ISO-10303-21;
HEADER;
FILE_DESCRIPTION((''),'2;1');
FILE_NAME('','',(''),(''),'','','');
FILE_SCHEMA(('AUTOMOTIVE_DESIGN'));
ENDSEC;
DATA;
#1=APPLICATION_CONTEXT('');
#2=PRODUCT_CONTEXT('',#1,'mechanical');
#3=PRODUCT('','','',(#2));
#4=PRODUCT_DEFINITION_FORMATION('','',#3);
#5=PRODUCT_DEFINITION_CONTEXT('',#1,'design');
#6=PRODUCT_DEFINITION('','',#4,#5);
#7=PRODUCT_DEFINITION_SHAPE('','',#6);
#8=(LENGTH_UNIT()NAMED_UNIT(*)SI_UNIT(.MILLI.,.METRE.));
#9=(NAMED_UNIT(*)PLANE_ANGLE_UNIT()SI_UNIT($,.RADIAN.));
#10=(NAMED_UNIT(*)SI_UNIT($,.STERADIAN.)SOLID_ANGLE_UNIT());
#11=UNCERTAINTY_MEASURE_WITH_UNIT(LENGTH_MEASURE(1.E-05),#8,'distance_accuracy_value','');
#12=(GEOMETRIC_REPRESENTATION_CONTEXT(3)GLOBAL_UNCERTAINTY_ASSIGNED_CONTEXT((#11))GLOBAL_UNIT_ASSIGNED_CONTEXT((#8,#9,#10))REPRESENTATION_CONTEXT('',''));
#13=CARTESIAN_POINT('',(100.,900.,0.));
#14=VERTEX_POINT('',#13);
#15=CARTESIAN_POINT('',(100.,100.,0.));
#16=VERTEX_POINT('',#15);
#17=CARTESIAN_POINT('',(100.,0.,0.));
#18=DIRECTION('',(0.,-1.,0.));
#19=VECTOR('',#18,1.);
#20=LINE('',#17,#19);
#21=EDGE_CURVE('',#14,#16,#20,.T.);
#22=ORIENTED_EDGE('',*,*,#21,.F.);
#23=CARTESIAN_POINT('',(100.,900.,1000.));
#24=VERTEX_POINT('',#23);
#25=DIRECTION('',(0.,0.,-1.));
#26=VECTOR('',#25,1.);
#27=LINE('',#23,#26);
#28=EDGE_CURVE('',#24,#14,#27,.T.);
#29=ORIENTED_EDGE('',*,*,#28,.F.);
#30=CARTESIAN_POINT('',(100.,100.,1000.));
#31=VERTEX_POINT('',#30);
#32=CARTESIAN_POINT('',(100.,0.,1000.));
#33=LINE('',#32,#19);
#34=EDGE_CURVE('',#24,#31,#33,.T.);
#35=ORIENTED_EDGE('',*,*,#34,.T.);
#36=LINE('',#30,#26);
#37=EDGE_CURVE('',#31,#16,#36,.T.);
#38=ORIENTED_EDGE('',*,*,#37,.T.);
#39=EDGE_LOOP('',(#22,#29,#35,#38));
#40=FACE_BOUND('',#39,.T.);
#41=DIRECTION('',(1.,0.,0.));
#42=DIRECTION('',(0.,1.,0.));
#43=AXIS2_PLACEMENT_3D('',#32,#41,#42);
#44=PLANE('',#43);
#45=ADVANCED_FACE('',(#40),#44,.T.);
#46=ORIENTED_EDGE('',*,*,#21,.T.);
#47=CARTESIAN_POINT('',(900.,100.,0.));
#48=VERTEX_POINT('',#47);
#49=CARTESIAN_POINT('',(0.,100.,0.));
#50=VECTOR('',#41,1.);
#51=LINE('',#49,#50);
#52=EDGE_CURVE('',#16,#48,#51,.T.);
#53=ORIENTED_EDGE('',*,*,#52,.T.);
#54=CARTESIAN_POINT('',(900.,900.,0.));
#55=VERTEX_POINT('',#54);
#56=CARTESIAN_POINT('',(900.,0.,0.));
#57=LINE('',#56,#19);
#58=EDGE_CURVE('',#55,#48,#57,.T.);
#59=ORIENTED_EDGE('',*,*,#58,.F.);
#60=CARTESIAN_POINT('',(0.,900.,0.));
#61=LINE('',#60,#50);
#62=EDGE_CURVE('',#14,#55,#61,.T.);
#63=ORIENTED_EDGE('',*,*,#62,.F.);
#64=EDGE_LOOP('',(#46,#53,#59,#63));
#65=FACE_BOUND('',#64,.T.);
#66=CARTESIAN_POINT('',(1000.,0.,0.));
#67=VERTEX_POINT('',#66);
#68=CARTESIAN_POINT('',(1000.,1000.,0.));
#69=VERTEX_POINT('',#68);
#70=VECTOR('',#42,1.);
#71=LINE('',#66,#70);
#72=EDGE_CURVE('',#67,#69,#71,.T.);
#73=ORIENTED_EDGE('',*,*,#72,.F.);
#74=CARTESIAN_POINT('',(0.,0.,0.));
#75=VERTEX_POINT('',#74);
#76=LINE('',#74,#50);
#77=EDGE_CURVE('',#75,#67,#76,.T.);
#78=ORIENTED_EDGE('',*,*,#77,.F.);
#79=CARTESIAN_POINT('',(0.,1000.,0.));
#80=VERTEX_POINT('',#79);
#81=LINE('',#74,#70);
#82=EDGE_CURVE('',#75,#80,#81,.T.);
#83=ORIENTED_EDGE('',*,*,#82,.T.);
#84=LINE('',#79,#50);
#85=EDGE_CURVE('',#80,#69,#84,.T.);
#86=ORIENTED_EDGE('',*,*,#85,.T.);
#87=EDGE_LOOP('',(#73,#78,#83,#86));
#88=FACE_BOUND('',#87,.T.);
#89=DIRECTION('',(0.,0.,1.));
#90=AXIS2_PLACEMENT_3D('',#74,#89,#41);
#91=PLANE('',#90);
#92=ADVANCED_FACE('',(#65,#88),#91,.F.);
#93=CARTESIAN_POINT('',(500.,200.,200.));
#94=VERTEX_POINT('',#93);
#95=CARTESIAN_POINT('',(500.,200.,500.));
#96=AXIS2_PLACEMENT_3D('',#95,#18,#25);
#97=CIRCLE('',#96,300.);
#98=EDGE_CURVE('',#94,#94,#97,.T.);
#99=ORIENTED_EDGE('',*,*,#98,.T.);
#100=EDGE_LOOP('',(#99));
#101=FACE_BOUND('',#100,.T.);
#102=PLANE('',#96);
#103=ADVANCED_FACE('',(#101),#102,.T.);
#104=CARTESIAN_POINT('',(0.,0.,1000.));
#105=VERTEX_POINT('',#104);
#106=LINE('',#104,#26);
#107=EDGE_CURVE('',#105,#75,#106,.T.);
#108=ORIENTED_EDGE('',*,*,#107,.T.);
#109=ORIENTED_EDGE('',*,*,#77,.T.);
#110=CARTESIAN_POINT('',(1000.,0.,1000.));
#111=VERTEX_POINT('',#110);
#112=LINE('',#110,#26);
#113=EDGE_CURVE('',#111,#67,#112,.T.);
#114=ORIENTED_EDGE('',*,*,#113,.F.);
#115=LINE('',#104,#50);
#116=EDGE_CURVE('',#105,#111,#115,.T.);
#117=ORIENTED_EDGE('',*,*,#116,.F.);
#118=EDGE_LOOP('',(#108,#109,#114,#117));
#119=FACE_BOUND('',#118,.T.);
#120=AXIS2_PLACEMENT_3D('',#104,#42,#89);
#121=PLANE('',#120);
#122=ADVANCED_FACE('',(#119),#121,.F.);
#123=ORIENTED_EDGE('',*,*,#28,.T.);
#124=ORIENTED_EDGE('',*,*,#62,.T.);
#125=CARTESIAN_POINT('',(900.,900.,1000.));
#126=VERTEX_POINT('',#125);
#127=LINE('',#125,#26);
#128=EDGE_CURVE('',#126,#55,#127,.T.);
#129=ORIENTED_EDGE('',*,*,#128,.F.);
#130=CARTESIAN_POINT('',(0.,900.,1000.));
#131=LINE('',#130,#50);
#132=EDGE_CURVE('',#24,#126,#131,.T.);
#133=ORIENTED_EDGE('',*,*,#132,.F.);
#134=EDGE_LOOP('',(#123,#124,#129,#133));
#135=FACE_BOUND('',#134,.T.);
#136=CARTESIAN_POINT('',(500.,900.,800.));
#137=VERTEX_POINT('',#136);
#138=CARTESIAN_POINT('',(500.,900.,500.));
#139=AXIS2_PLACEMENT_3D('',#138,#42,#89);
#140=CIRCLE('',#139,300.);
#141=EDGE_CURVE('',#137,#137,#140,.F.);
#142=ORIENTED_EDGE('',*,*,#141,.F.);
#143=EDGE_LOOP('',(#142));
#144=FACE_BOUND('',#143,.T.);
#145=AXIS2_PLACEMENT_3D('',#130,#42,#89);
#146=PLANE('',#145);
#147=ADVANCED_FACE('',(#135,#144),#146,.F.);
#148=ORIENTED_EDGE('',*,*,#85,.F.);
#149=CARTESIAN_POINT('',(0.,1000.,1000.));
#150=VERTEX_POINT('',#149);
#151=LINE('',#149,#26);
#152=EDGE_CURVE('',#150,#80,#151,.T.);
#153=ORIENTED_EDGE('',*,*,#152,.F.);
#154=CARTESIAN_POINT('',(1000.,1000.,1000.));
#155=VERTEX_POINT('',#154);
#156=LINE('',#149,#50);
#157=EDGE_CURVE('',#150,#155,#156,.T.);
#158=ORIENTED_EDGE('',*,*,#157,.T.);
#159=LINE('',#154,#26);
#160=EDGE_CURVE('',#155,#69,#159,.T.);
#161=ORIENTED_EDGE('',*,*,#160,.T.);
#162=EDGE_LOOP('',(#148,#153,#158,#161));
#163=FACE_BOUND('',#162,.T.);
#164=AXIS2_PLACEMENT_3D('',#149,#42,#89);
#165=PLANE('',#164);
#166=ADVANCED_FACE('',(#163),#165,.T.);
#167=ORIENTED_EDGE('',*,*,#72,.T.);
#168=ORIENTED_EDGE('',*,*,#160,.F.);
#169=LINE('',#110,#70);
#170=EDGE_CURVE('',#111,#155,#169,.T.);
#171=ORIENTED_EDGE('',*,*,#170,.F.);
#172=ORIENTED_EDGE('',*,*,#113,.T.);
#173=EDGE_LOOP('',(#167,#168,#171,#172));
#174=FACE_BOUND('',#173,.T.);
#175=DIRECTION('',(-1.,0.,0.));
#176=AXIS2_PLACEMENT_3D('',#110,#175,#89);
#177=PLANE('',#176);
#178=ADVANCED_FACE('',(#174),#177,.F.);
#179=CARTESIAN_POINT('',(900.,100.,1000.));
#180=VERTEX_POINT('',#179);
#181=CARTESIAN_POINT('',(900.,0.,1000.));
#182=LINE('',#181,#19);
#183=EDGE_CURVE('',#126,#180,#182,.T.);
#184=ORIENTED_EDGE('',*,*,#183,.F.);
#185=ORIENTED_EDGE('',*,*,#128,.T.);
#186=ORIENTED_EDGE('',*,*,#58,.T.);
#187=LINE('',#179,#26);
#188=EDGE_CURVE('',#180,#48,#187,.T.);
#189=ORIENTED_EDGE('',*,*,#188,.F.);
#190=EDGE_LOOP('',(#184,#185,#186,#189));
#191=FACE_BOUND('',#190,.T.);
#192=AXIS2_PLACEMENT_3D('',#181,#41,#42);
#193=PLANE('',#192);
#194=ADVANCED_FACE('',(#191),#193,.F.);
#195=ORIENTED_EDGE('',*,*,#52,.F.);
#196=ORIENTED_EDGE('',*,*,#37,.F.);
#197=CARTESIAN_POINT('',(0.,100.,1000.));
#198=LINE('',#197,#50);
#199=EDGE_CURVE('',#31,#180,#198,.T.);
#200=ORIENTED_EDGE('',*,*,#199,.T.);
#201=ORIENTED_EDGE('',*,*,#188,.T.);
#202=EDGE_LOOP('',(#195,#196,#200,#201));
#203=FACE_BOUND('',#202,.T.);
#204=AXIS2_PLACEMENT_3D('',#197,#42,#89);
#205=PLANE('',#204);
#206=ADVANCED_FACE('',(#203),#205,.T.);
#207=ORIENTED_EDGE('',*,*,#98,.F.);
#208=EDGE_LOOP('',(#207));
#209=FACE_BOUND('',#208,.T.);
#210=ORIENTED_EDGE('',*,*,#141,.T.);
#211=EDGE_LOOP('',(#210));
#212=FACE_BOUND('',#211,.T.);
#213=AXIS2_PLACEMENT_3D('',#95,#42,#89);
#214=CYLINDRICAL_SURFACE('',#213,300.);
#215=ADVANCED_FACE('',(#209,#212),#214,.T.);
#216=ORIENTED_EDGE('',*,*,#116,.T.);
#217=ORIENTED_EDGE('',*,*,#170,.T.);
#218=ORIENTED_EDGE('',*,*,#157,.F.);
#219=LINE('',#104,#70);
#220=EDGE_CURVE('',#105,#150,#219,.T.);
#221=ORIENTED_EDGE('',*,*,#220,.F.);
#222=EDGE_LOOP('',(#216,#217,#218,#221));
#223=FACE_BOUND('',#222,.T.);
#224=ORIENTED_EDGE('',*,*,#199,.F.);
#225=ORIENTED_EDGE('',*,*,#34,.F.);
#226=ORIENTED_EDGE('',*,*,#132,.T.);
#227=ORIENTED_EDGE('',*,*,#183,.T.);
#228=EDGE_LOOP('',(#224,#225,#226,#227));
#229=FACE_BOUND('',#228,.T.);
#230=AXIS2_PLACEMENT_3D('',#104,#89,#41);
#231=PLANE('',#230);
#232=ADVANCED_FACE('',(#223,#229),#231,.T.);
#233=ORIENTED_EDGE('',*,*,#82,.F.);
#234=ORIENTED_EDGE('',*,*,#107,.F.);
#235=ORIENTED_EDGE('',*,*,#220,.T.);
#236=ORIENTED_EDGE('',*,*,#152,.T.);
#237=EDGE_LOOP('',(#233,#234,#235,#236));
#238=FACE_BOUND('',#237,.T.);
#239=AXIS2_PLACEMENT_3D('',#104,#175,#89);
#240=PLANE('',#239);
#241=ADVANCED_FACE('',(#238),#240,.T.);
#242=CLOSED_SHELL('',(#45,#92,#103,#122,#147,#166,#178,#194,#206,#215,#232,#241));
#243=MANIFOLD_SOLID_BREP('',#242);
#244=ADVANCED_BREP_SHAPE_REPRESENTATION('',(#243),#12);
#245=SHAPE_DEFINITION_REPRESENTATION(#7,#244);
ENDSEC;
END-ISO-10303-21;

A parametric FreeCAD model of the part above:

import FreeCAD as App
import Part
import Sketcher
from FreeCAD import Vector


def add_polygon(sketch, points):
    """Adds a closed chain of lines whose ends are joined by coincident constraints."""
    first, n = sketch.GeometryCount, len(points)
    for a, b in zip(points, points[1:] + points[:1]):
        sketch.addGeometry(Part.LineSegment(App.Vector(*a, 0), App.Vector(*b, 0)), False)
    for i in range(n):
        sketch.addConstraint(Sketcher.Constraint("Coincident", first + i, 2, first + (i + 1) % n, 1))

doc = App.newDocument("Part")
body = doc.addObject("PartDesign::Body", "Body")

# Sketch on XY plane
sketch1 = body.newObject("Sketcher::SketchObject", "Sketch")
sketch1.AttachmentSupport = (doc.getObject("XY_Plane"), [""])
sketch1.MapMode = "FlatFace"
add_polygon(sketch1, [(0, 1000), (0, 0), (1000, 0), (1000, 1000)])  # lines 0-3
add_polygon(sketch1, [(900, 100), (100, 100), (100, 900), (900, 900)])  # lines 4-7
sketch1.addConstraint([
    Sketcher.Constraint("Vertical", 0),
    Sketcher.Constraint("Horizontal", 1),
    Sketcher.Constraint("Vertical", 2),
    Sketcher.Constraint("Horizontal", 3),
    Sketcher.Constraint("Horizontal", 4),
    Sketcher.Constraint("Vertical", 5),
    Sketcher.Constraint("Horizontal", 6),
    Sketcher.Constraint("Vertical", 7),
    Sketcher.Constraint("Coincident", 0, 2, -1, 1),
    Sketcher.Constraint("Equal", 3, 0),
    Sketcher.Constraint("Equal", 6, 5),
    Sketcher.Constraint("DistanceX", 1, 1, 1, 2, 1000.0),
    Sketcher.Constraint("DistanceX", 4, 2, 4, 1, 800.0),
    Sketcher.Constraint("DistanceX", -1, 1, 4, 2, 100.0),
    Sketcher.Constraint("DistanceY", -1, 1, 4, 2, 100.0),
])
pad1 = body.newObject("PartDesign::Pad", "Pad")
pad1.Profile = sketch1
pad1.Length = 1000

# Sketch on XZ plane
sketch2 = body.newObject("Sketcher::SketchObject", "Sketch001")
sketch2.AttachmentSupport = (doc.getObject("XZ_Plane"), [""])
sketch2.MapMode = "FlatFace"
sketch2.AttachmentOffset = App.Placement(Vector(0, 0, -900), App.Rotation())
sketch2.addGeometry(Part.Circle(Vector(500, 500, 0), Vector(0, 0, 1), 300), False)
sketch2.addConstraint([
    Sketcher.Constraint("Diameter", 0, 600.0),
    Sketcher.Constraint("DistanceX", -1, 1, 0, 3, 500.0),
    Sketcher.Constraint("DistanceY", -1, 1, 0, 3, 500.0),
])
pad2 = body.newObject("PartDesign::Pad", "Pad001")
pad2.Profile = sketch2
pad2.Length = 700

doc.recompute()
